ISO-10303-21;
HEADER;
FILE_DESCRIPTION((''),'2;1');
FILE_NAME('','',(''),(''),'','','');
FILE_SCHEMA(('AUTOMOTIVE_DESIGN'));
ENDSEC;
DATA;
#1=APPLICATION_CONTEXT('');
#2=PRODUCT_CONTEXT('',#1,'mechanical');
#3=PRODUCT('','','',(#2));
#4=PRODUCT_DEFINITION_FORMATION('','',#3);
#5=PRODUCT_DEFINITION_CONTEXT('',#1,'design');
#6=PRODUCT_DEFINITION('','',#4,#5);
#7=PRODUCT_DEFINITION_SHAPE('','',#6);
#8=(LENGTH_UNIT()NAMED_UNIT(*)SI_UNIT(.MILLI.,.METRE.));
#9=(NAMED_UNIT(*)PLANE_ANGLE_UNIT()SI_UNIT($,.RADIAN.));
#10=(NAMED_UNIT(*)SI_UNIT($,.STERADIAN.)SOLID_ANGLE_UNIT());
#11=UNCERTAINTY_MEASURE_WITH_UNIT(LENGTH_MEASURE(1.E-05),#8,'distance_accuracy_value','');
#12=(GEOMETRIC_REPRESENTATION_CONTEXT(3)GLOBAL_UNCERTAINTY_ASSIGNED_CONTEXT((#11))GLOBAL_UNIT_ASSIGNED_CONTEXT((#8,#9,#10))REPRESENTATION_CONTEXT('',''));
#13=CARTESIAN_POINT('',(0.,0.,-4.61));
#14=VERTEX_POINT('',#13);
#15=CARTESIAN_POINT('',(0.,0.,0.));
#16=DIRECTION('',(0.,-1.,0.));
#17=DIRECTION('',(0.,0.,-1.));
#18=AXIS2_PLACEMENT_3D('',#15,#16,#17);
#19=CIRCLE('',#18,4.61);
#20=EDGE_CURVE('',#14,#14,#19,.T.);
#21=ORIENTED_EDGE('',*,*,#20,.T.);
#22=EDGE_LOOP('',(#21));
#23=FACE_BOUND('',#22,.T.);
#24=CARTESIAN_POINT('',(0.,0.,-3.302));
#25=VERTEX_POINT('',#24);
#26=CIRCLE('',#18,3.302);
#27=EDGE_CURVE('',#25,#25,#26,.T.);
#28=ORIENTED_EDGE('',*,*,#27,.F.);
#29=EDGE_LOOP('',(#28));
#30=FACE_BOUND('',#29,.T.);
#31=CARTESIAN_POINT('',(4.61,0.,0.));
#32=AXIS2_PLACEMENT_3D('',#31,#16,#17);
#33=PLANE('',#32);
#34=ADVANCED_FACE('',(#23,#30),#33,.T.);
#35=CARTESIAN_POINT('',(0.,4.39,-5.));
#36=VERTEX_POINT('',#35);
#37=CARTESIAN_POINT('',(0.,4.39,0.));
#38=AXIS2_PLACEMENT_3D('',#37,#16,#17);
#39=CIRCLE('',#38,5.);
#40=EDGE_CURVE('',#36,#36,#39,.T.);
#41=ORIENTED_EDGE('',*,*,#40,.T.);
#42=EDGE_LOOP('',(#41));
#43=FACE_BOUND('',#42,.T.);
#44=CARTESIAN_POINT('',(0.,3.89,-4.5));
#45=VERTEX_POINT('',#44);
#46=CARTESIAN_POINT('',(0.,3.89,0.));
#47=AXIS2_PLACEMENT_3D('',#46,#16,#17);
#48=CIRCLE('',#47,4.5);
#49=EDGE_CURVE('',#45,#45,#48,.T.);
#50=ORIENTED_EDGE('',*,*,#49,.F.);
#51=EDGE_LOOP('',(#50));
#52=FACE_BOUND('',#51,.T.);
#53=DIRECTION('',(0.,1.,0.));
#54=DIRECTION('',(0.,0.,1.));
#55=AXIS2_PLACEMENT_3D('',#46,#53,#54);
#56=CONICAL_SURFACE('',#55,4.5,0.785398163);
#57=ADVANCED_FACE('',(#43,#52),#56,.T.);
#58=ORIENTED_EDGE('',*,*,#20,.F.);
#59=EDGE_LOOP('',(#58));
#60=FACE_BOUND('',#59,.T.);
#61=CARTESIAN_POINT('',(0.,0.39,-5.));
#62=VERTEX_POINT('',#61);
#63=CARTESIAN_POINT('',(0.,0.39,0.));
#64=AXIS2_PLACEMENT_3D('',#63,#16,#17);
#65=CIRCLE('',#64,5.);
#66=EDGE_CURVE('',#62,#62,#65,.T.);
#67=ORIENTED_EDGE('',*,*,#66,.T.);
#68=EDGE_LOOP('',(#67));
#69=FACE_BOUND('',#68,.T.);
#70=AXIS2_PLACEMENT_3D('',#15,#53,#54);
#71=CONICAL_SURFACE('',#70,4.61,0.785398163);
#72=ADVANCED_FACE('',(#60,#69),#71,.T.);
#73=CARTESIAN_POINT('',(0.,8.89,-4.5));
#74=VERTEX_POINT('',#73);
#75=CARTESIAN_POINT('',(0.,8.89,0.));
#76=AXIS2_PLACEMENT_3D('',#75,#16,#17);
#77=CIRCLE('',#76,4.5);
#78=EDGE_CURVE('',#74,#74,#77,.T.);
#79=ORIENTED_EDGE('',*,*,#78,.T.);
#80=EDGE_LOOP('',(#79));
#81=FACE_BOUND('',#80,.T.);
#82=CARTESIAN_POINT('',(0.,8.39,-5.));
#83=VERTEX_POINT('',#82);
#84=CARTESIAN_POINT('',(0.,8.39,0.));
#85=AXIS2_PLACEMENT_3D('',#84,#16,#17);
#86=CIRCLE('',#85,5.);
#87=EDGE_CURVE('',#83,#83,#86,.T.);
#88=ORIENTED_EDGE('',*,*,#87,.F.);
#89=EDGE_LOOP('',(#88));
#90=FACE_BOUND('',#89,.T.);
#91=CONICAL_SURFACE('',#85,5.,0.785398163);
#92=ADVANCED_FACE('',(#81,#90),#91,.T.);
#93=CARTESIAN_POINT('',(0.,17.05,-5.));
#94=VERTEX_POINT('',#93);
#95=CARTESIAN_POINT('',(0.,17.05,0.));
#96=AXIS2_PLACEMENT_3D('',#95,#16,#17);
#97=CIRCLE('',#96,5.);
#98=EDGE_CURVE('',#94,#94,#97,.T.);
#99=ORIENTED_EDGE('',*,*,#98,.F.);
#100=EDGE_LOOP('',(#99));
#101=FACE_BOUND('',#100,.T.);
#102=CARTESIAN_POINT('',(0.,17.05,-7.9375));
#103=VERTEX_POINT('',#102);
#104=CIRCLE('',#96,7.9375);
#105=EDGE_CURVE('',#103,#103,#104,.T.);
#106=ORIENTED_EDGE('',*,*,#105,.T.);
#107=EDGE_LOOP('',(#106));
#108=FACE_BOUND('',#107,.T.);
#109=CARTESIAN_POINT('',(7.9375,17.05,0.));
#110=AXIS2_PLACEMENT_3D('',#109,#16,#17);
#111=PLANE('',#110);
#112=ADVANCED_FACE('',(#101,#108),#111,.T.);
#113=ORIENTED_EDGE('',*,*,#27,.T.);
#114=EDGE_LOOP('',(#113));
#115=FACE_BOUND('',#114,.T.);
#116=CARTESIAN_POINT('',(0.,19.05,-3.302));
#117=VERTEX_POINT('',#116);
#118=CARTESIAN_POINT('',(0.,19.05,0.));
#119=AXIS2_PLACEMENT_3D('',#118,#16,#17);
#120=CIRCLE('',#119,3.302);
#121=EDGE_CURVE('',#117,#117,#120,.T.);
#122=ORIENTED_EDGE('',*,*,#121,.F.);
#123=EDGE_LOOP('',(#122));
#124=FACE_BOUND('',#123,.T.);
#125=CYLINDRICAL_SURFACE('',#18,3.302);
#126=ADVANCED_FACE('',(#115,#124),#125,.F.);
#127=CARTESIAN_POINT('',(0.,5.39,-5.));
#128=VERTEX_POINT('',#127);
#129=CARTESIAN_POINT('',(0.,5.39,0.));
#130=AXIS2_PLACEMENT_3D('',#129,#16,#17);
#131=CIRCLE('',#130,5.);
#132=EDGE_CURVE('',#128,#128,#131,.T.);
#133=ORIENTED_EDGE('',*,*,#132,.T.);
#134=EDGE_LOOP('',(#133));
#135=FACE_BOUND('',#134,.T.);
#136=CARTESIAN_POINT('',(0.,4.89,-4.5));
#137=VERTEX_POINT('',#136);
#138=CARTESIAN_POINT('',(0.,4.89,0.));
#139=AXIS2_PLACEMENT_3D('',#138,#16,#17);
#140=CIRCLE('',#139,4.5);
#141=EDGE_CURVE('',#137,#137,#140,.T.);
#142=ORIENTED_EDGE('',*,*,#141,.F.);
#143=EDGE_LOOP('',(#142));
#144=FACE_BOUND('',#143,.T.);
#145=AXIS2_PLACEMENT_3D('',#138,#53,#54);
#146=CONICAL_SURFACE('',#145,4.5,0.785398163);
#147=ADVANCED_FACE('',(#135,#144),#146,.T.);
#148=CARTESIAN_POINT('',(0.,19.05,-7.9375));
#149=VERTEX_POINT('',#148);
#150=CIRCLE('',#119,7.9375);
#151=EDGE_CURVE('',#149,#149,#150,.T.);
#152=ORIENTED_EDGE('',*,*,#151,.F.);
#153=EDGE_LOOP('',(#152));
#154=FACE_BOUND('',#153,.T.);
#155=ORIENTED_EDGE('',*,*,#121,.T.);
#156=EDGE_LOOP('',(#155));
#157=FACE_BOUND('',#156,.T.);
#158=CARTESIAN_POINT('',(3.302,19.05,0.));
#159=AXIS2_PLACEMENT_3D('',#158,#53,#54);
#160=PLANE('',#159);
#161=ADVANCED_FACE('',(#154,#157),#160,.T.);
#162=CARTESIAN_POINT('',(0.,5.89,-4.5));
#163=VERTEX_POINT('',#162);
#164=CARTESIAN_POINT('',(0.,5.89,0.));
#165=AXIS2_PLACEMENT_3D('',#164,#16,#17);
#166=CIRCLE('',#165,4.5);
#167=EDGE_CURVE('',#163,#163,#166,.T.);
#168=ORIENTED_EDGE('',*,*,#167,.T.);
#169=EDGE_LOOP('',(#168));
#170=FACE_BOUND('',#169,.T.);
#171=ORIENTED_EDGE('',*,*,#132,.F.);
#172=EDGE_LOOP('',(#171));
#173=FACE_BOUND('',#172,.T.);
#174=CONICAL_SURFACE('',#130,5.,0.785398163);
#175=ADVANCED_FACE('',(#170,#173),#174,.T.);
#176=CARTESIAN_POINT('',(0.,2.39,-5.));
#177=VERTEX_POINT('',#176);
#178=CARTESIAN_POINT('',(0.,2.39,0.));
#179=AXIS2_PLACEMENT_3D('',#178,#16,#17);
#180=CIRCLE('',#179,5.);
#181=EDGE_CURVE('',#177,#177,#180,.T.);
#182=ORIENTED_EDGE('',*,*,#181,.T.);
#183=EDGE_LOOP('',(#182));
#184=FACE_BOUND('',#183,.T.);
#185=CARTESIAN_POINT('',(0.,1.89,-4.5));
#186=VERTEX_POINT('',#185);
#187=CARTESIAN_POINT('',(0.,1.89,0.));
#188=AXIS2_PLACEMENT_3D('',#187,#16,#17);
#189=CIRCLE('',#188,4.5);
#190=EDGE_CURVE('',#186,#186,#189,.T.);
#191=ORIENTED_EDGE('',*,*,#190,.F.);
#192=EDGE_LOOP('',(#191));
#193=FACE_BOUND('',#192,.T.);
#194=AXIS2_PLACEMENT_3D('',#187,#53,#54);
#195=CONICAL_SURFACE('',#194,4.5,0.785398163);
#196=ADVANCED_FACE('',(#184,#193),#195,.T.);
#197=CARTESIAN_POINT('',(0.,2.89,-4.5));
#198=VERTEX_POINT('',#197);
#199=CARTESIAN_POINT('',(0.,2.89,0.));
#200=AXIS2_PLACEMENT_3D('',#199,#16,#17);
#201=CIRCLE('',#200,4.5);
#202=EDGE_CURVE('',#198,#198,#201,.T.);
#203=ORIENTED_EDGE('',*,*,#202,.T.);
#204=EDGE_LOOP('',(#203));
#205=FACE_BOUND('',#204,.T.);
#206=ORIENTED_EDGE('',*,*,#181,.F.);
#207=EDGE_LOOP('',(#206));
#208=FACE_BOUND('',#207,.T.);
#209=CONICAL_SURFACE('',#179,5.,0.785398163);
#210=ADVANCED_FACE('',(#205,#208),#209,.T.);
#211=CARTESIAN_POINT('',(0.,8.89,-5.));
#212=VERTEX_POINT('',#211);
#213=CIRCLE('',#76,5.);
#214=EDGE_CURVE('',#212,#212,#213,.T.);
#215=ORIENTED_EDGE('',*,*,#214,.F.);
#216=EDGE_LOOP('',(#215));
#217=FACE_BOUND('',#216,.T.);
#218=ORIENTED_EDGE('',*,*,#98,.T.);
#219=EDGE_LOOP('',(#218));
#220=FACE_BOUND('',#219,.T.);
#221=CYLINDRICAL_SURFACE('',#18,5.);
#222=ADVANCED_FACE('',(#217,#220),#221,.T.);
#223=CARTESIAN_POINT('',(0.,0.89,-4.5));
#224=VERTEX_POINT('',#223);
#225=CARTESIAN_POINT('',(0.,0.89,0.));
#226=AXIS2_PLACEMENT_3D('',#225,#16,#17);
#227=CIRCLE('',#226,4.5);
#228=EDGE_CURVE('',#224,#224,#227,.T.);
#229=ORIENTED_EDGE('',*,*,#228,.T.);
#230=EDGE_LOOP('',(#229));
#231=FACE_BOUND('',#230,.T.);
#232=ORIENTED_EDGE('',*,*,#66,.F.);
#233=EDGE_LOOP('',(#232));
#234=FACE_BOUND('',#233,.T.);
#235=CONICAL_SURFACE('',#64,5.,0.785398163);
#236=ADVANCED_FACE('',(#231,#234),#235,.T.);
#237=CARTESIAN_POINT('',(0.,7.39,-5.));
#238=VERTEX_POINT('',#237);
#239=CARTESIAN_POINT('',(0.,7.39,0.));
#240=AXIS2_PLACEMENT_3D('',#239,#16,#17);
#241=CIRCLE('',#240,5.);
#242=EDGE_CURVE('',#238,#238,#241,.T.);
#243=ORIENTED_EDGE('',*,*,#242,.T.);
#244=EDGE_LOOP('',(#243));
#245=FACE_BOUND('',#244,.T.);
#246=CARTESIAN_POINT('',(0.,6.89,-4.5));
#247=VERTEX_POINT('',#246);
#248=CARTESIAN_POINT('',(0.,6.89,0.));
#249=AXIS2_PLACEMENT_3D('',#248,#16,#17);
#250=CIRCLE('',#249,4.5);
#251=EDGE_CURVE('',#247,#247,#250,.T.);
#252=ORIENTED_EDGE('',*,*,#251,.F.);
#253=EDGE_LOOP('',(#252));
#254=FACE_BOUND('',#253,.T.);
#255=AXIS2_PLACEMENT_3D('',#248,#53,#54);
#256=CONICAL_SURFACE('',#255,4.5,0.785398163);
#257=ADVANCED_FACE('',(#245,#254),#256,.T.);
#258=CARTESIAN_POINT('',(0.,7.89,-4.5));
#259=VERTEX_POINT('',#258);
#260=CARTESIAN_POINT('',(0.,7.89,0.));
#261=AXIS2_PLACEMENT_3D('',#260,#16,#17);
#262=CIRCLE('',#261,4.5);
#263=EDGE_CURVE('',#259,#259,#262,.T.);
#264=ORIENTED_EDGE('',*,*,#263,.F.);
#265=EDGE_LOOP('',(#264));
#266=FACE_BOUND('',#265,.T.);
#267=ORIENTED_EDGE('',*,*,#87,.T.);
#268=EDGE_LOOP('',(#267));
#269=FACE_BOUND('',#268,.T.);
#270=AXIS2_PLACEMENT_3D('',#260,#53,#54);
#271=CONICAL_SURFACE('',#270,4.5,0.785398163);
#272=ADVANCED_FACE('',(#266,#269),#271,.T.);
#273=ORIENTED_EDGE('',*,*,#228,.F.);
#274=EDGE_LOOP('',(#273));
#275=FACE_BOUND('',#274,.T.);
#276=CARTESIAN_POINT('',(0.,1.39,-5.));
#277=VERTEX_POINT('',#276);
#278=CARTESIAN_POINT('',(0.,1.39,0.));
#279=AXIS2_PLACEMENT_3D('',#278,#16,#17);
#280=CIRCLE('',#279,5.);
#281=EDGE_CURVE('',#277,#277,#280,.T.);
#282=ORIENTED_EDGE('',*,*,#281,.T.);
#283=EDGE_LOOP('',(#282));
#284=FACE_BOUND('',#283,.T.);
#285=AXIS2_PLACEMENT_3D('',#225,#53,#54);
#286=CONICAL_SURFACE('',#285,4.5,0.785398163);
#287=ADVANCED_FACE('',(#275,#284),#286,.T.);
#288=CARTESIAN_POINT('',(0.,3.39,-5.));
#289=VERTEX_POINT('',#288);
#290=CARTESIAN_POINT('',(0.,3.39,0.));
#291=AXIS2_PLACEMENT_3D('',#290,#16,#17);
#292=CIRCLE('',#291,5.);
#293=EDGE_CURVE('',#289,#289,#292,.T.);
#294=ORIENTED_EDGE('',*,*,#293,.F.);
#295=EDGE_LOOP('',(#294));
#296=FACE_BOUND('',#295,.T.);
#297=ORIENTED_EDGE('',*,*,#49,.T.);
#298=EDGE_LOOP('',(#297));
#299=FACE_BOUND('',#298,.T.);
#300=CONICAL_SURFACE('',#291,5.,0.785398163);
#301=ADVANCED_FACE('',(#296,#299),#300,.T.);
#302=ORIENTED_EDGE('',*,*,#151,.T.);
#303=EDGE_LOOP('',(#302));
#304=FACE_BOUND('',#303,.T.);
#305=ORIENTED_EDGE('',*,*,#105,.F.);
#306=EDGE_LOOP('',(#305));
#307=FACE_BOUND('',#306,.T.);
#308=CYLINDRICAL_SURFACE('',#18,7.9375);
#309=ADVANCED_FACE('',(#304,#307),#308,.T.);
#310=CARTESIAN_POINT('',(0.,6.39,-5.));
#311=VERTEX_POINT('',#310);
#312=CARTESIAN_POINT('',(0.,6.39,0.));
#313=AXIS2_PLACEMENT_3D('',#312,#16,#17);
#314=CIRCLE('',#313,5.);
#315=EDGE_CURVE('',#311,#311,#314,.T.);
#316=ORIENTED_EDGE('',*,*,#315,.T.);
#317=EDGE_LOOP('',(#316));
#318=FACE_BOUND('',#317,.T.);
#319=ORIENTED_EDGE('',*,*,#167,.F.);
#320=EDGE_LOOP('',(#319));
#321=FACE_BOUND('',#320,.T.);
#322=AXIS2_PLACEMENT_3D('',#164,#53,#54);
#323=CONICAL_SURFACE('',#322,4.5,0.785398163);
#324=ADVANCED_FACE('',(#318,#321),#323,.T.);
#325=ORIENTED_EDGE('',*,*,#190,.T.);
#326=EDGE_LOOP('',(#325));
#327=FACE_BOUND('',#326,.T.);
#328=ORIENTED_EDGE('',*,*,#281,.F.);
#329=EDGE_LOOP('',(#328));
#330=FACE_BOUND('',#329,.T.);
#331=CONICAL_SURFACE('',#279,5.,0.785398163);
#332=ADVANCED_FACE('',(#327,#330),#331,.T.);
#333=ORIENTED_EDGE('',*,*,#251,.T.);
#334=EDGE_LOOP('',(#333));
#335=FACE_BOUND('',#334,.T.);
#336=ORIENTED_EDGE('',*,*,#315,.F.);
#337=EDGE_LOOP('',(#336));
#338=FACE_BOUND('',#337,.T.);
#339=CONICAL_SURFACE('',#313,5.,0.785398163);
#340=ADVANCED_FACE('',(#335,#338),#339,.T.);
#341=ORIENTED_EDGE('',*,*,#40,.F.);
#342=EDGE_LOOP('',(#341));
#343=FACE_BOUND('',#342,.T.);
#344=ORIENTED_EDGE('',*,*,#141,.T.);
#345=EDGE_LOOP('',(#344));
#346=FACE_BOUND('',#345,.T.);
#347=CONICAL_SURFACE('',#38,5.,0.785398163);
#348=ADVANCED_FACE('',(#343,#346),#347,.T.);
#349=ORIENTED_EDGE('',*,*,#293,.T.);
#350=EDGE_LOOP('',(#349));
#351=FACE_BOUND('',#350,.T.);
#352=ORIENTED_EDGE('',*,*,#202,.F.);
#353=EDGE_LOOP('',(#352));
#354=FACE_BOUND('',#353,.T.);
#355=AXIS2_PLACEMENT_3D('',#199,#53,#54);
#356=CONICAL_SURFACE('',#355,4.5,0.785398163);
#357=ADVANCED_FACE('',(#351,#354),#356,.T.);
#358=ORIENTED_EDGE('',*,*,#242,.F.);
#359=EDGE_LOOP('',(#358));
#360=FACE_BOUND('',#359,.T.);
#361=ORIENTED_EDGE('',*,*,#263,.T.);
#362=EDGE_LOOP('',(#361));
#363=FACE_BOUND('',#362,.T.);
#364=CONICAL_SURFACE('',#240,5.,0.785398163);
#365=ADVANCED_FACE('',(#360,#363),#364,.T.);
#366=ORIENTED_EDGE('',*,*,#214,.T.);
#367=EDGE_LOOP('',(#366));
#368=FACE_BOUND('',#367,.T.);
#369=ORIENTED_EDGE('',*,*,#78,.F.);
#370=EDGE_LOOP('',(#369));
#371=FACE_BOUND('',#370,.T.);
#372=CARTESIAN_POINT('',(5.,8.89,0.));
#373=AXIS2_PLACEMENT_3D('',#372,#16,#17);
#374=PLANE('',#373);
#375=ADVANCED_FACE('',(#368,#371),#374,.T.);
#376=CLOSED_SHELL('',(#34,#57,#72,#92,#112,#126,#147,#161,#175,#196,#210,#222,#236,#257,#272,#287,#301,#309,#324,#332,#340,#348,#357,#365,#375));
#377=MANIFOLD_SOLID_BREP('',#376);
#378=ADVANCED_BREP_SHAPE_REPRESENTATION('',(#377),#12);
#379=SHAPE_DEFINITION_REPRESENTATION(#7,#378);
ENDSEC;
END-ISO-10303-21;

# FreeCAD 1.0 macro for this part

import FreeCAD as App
import Part
import Sketcher

V = App.Vector

doc = App.newDocument("Part")
body = doc.addObject("PartDesign::Body", "Body")

# Sketch on XY plane
sketch1 = doc.addObject("Sketcher::SketchObject", "Sketch")
body.addObject(sketch1)
sketch1.AttachmentSupport = (doc.XY_Plane, [""])
sketch1.MapMode = "FlatFace"
sketch1.addGeometry([
    Part.LineSegment(V(3.3, 19.1, 0), V(3.3, 0, 0)),  # 0
    Part.LineSegment(V(3.3, 0, 0), V(4.6, 0, 0)),  # 1
    Part.LineSegment(V(4.6, 0, 0), V(5, 0.4, 0)),  # 2
    Part.LineSegment(V(5, 0.4, 0), V(4.5, 0.9, 0)),  # 3
    Part.LineSegment(V(4.5, 0.9, 0), V(5, 1.4, 0)),  # 4
    Part.LineSegment(V(5, 1.4, 0), V(4.5, 1.9, 0)),  # 5
    Part.LineSegment(V(4.5, 1.9, 0), V(5, 2.4, 0)),  # 6
    Part.LineSegment(V(5, 2.4, 0), V(4.5, 2.9, 0)),  # 7
    Part.LineSegment(V(4.5, 2.9, 0), V(5, 3.4, 0)),  # 8
    Part.LineSegment(V(5, 3.4, 0), V(4.5, 3.9, 0)),  # 9
    Part.LineSegment(V(4.5, 3.9, 0), V(5, 4.4, 0)),  # 10
    Part.LineSegment(V(5, 4.4, 0), V(4.5, 4.9, 0)),  # 11
    Part.LineSegment(V(4.5, 4.9, 0), V(5, 5.4, 0)),  # 12
    Part.LineSegment(V(5, 5.4, 0), V(4.5, 5.9, 0)),  # 13
    Part.LineSegment(V(4.5, 5.9, 0), V(5, 6.4, 0)),  # 14
    Part.LineSegment(V(5, 6.4, 0), V(4.5, 6.9, 0)),  # 15
    Part.LineSegment(V(4.5, 6.9, 0), V(5, 7.4, 0)),  # 16
    Part.LineSegment(V(5, 7.4, 0), V(4.5, 7.9, 0)),  # 17
    Part.LineSegment(V(4.5, 7.9, 0), V(5, 8.4, 0)),  # 18
    Part.LineSegment(V(5, 8.4, 0), V(4.5, 8.9, 0)),  # 19
    Part.LineSegment(V(4.5, 8.9, 0), V(5, 8.9, 0)),  # 20
    Part.LineSegment(V(5, 8.9, 0), V(5, 17.1, 0)),  # 21
    Part.LineSegment(V(5, 17.1, 0), V(7.9, 17.1, 0)),  # 22
    Part.LineSegment(V(7.9, 17.1, 0), V(7.9, 19.1, 0)),  # 23
    Part.LineSegment(V(7.9, 19.1, 0), V(3.3, 19.1, 0)),  # 24
], False)
sketch1.addConstraint([
    Sketcher.Constraint("Coincident", 0, 2, 1, 1),
    Sketcher.Constraint("Coincident", 1, 2, 2, 1),
    Sketcher.Constraint("Coincident", 2, 2, 3, 1),
    Sketcher.Constraint("Coincident", 3, 2, 4, 1),
    Sketcher.Constraint("Coincident", 4, 2, 5, 1),
    Sketcher.Constraint("Coincident", 5, 2, 6, 1),
    Sketcher.Constraint("Coincident", 6, 2, 7, 1),
    Sketcher.Constraint("Coincident", 7, 2, 8, 1),
    Sketcher.Constraint("Coincident", 8, 2, 9, 1),
    Sketcher.Constraint("Coincident", 9, 2, 10, 1),
    Sketcher.Constraint("Coincident", 10, 2, 11, 1),
    Sketcher.Constraint("Coincident", 11, 2, 12, 1),
    Sketcher.Constraint("Coincident", 12, 2, 13, 1),
    Sketcher.Constraint("Coincident", 13, 2, 14, 1),
    Sketcher.Constraint("Coincident", 14, 2, 15, 1),
    Sketcher.Constraint("Coincident", 15, 2, 16, 1),
    Sketcher.Constraint("Coincident", 16, 2, 17, 1),
    Sketcher.Constraint("Coincident", 17, 2, 18, 1),
    Sketcher.Constraint("Coincident", 18, 2, 19, 1),
    Sketcher.Constraint("Coincident", 19, 2, 20, 1),
    Sketcher.Constraint("Coincident", 20, 2, 21, 1),
    Sketcher.Constraint("Coincident", 21, 2, 22, 1),
    Sketcher.Constraint("Coincident", 22, 2, 23, 1),
    Sketcher.Constraint("Coincident", 23, 2, 24, 1),
    Sketcher.Constraint("Coincident", 24, 2, 0, 1),
    Sketcher.Constraint("Vertical", 0),
    Sketcher.Constraint("Horizontal", 1),
    Sketcher.Constraint("Horizontal", 20),
    Sketcher.Constraint("Vertical", 21),
    Sketcher.Constraint("Horizontal", 22),
    Sketcher.Constraint("Vertical", 23),
    Sketcher.Constraint("Horizontal", 24),
    Sketcher.Constraint("PointOnObject", 0, 2, -1),
    Sketcher.Constraint("Perpendicular", 2, 3),
    Sketcher.Constraint("Perpendicular", 3, 4),
    Sketcher.Constraint("Perpendicular", 4, 5),
    Sketcher.Constraint("Perpendicular", 5, 6),
    Sketcher.Constraint("Perpendicular", 6, 7),
    Sketcher.Constraint("Perpendicular", 7, 8),
    Sketcher.Constraint("Perpendicular", 8, 9),
    Sketcher.Constraint("Perpendicular", 9, 10),
    Sketcher.Constraint("Perpendicular", 10, 11),
    Sketcher.Constraint("Perpendicular", 11, 12),
    Sketcher.Constraint("Perpendicular", 12, 13),
    Sketcher.Constraint("Perpendicular", 13, 14),
    Sketcher.Constraint("Perpendicular", 14, 15),
    Sketcher.Constraint("Perpendicular", 15, 16),
    Sketcher.Constraint("Perpendicular", 16, 17),
    Sketcher.Constraint("Perpendicular", 17, 18),
    Sketcher.Constraint("Perpendicular", 18, 19),
    Sketcher.Constraint("Vertical", 2, 2, 4, 2),
    Sketcher.Constraint("Vertical", 3, 2, 5, 2),
    Sketcher.Constraint("Vertical", 4, 2, 6, 2),
    Sketcher.Constraint("Vertical", 5, 2, 7, 2),
    Sketcher.Constraint("Vertical", 6, 2, 8, 2),
    Sketcher.Constraint("Vertical", 7, 2, 9, 2),
    Sketcher.Constraint("Vertical", 8, 2, 10, 2),
    Sketcher.Constraint("Vertical", 9, 2, 11, 2),
    Sketcher.Constraint("Vertical", 10, 2, 12, 2),
    Sketcher.Constraint("Vertical", 11, 2, 13, 2),
    Sketcher.Constraint("Vertical", 12, 2, 14, 2),
    Sketcher.Constraint("Vertical", 13, 2, 15, 2),
    Sketcher.Constraint("Vertical", 14, 2, 16, 2),
    Sketcher.Constraint("Vertical", 15, 2, 17, 2),
    Sketcher.Constraint("Vertical", 16, 2, 18, 2),
    Sketcher.Constraint("Vertical", 17, 2, 19, 2),
    Sketcher.Constraint("Vertical", 18, 2, 20, 2),
    Sketcher.Constraint("Equal", 3, 4),
    Sketcher.Constraint("DistanceY", 23, 1, 23, 2, 2.0),
    Sketcher.Constraint("DistanceX", 20, 1, 20, 2, 0.5),
    Sketcher.Constraint("DistanceX", -1, 1, 2, 2, 5.0),
    Sketcher.Constraint("DistanceY", 0, 2, 0, 1, 19.05),
    Sketcher.Constraint("DistanceY", 21, 1, 21, 2, 8.16),
    Sketcher.Constraint("DistanceX", 1, 1, 1, 2, 1.308),
    Sketcher.Constraint("DistanceX", 22, 1, 22, 2, 2.9375),
])
revolution = doc.addObject("PartDesign::Revolution", "Revolution")
body.addObject(revolution)
revolution.Profile = sketch1
revolution.ReferenceAxis = (sketch1, ["V_Axis"])
revolution.Angle = 360

doc.recompute()
